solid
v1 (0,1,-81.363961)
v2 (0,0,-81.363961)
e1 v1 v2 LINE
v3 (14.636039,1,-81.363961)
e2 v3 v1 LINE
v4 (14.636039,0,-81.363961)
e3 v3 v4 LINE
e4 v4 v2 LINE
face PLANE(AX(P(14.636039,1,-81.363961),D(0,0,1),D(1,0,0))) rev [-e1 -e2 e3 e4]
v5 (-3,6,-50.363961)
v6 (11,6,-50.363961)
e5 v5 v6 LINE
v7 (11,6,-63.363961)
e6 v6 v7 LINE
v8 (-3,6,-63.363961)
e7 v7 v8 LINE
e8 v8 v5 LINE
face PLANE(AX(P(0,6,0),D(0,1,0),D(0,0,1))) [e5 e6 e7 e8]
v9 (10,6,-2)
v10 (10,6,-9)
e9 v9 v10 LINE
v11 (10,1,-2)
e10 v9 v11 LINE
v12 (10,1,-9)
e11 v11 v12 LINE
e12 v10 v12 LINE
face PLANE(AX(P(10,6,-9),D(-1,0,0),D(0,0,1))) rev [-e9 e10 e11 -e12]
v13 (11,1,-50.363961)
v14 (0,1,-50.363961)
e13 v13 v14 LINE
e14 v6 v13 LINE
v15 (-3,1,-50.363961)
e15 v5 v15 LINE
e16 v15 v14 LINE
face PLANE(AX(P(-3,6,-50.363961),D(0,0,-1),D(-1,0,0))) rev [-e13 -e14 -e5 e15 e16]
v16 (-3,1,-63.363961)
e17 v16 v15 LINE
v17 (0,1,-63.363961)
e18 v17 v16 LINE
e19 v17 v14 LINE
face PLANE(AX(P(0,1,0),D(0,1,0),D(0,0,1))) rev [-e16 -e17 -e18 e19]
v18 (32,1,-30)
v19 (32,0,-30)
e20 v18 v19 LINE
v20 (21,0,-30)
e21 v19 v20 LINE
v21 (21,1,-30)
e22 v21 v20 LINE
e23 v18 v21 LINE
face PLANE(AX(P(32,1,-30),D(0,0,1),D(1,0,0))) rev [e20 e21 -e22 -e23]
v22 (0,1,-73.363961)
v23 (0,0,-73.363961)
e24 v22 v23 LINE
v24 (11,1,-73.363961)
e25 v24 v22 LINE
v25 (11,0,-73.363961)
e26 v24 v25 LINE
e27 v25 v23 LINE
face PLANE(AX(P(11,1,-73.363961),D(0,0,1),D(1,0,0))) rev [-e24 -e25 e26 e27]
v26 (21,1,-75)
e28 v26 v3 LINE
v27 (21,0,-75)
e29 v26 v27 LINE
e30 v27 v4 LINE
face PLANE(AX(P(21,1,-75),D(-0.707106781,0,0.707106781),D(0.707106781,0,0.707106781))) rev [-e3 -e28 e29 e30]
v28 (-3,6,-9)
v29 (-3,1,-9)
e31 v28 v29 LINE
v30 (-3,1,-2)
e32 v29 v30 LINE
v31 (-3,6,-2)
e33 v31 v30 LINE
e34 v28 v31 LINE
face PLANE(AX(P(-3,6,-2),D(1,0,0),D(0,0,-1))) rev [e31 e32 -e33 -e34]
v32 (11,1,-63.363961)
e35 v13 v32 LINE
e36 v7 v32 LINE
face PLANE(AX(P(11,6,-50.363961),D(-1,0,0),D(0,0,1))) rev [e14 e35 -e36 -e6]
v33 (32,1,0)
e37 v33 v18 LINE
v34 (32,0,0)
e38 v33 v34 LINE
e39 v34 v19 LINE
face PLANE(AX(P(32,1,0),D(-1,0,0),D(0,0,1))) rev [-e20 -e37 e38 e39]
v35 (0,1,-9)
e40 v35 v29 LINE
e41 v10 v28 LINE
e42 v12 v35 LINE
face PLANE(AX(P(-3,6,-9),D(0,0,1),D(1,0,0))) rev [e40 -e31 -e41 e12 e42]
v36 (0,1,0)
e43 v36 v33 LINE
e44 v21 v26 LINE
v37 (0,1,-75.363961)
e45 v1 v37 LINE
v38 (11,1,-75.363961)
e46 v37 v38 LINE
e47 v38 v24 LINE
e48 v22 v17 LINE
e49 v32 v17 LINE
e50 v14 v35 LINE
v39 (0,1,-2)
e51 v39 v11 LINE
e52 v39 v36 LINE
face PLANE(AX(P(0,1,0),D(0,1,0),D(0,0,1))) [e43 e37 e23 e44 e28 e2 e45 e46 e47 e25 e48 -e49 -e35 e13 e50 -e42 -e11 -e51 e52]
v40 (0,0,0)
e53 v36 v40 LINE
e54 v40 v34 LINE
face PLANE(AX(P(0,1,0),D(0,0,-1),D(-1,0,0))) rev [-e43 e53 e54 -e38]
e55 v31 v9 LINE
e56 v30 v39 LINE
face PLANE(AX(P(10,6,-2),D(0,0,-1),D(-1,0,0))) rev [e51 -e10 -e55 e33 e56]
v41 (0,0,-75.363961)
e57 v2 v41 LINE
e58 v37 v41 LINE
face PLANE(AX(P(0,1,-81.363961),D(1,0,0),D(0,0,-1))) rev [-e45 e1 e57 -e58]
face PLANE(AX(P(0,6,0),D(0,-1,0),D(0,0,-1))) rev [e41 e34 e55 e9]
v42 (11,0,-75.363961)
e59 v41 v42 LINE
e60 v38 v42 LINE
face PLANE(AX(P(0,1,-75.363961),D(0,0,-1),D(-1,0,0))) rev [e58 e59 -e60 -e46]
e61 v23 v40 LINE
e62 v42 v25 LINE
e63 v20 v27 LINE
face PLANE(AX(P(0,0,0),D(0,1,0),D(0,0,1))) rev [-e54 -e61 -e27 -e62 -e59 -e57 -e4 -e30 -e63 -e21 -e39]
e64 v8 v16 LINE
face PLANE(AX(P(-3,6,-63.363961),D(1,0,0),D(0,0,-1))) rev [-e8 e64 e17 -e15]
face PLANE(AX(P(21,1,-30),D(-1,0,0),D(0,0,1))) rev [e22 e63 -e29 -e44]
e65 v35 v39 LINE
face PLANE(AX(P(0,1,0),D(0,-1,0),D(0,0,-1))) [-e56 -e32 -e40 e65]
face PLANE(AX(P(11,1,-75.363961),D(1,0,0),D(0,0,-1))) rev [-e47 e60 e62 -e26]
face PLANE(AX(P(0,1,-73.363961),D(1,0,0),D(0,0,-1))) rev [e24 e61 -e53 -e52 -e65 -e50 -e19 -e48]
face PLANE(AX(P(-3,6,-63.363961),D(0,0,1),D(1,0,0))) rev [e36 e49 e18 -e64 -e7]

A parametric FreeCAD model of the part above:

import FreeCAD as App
import Part
import Sketcher
from FreeCAD import Vector
Q = App.Units.Quantity

doc = App.newDocument("Part")
body = doc.addObject("PartDesign::Body", "Body")

sketch1 = body.newObject("Sketcher::SketchObject", "Sketch")
sketch1.AttachmentSupport = (doc.getObject("XZ_Plane"), [""])
sketch1.MapMode = "FlatFace"
sketch1.addGeometry([
    Part.LineSegment(Vector(0, 0, 0), Vector(32, 0, 0)),
    Part.LineSegment(Vector(32, 0, 0), Vector(32, -30, 0)),
    Part.LineSegment(Vector(32, -30, 0), Vector(21, -30, 0)),
    Part.LineSegment(Vector(21, -30, 0), Vector(21, -75, 0)),
    Part.LineSegment(Vector(21, -75, 0), Vector(14.636039, -81.363961, 0)),
    Part.LineSegment(Vector(14.636039, -81.363961, 0), Vector(0, -81.363961, 0)),
    Part.LineSegment(Vector(0, -81.363961, 0), Vector(0, -75.363961, 0)),
    Part.LineSegment(Vector(0, -75.363961, 0), Vector(11, -75.363961, 0)),
    Part.LineSegment(Vector(11, -75.363961, 0), Vector(11, -73.363961, 0)),
    Part.LineSegment(Vector(11, -73.363961, 0), Vector(0, -73.363961, 0)),
    Part.LineSegment(Vector(0, -73.363961, 0), Vector(0, 0, 0)),
], False)
sketch1.addConstraint([
    Sketcher.Constraint("Coincident", 0, 2, 1, 1),
    Sketcher.Constraint("Coincident", 1, 2, 2, 1),
    Sketcher.Constraint("Coincident", 2, 2, 3, 1),
    Sketcher.Constraint("Coincident", 3, 2, 4, 1),
    Sketcher.Constraint("Coincident", 4, 2, 5, 1),
    Sketcher.Constraint("Coincident", 5, 2, 6, 1),
    Sketcher.Constraint("Coincident", 6, 2, 7, 1),
    Sketcher.Constraint("Coincident", 7, 2, 8, 1),
    Sketcher.Constraint("Coincident", 8, 2, 9, 1),
    Sketcher.Constraint("Coincident", 9, 2, 10, 1),
    Sketcher.Constraint("Coincident", 10, 2, 0, 1),
    Sketcher.Constraint("Horizontal", 0),
    Sketcher.Constraint("Vertical", 1),
    Sketcher.Constraint("Horizontal", 2),
    Sketcher.Constraint("Vertical", 3),
    Sketcher.Constraint("Horizontal", 5),
    Sketcher.Constraint("Vertical", 6),
    Sketcher.Constraint("Horizontal", 7),
    Sketcher.Constraint("Vertical", 8),
    Sketcher.Constraint("Horizontal", 9),
    Sketcher.Constraint("Vertical", 10),
    Sketcher.Constraint("Coincident", 10, 2, -1, 1),
    Sketcher.Constraint("PointOnObject", 5, 2, -2),
    Sketcher.Constraint("Equal", 2, 7),
    Sketcher.Constraint("DistanceX", 0, 1, 0, 2, Q("32 mm")),
    Sketcher.Constraint("DistanceX", 2, 2, 2, 1, Q("11 mm")),
    Sketcher.Constraint("DistanceY", 1, 2, 1, 1, Q("30 mm")),
    Sketcher.Constraint("DistanceY", 3, 2, 3, 1, Q("45 mm")),
    Sketcher.Constraint("DistanceY", 6, 1, 6, 2, Q("6 mm")),
    Sketcher.Constraint("DistanceY", 8, 1, 8, 2, Q("2 mm")),
    Sketcher.Constraint("Angle", 4, Q("-135 deg")),
    Sketcher.Constraint("Distance", 4, Q("9 mm")),
])
pad1 = body.newObject("PartDesign::Pad", "Pad")
pad1.Profile = sketch1
pad1.Length = 1
pad1.Reversed = True

sketch2 = body.newObject("Sketcher::SketchObject", "Sketch001")
sketch2.AttachmentSupport = (doc.getObject("XZ_Plane"), [""])
sketch2.MapMode = "FlatFace"
sketch2.AttachmentOffset = App.Placement(Vector(0, 0, -1), App.Rotation())
sketch2.addGeometry([
    Part.LineSegment(Vector(-3, -9, 0), Vector(-3, -2, 0)),
    Part.LineSegment(Vector(-3, -2, 0), Vector(10, -2, 0)),
    Part.LineSegment(Vector(10, -2, 0), Vector(10, -9, 0)),
    Part.LineSegment(Vector(10, -9, 0), Vector(-3, -9, 0)),
], False)
sketch2.addConstraint([
    Sketcher.Constraint("Coincident", 0, 2, 1, 1),
    Sketcher.Constraint("Coincident", 1, 2, 2, 1),
    Sketcher.Constraint("Coincident", 2, 2, 3, 1),
    Sketcher.Constraint("Coincident", 3, 2, 0, 1),
    Sketcher.Constraint("Vertical", 0),
    Sketcher.Constraint("Horizontal", 1),
    Sketcher.Constraint("Vertical", 2),
    Sketcher.Constraint("Horizontal", 3),
    Sketcher.Constraint("DistanceX", 1, 1, 1, 2, Q("13 mm")),
    Sketcher.Constraint("DistanceY", 0, 1, 0, 2, Q("7 mm")),
    Sketcher.Constraint("DistanceX", 0, 2, -1, 1, Q("3 mm")),
    Sketcher.Constraint("DistanceY", 0, 2, -1, 1, Q("2 mm")),
])
pad2 = body.newObject("PartDesign::Pad", "Pad001")
pad2.Profile = sketch2
pad2.Length = 5
pad2.Reversed = True

sketch3 = body.newObject("Sketcher::SketchObject", "Sketch002")
sketch3.AttachmentSupport = (doc.getObject("XZ_Plane"), [""])
sketch3.MapMode = "FlatFace"
sketch3.AttachmentOffset = App.Placement(Vector(0, 0, -1), App.Rotation())
sketch3.addGeometry([
    Part.LineSegment(Vector(-3, -63.363961, 0), Vector(-3, -50.363961, 0)),
    Part.LineSegment(Vector(-3, -50.363961, 0), Vector(11, -50.363961, 0)),
    Part.LineSegment(Vector(11, -50.363961, 0), Vector(11, -63.363961, 0)),
    Part.LineSegment(Vector(11, -63.363961, 0), Vector(-3, -63.363961, 0)),
], False)
sketch3.addConstraint([
    Sketcher.Constraint("Coincident", 0, 2, 1, 1),
    Sketcher.Constraint("Coincident", 1, 2, 2, 1),
    Sketcher.Constraint("Coincident", 2, 2, 3, 1),
    Sketcher.Constraint("Coincident", 3, 2, 0, 1),
    Sketcher.Constraint("Vertical", 0),
    Sketcher.Constraint("Horizontal", 1),
    Sketcher.Constraint("Vertical", 2),
    Sketcher.Constraint("Horizontal", 3),
    Sketcher.Constraint("DistanceX", 1, 1, 1, 2, Q("14 mm")),
    Sketcher.Constraint("DistanceY", 0, 1, 0, 2, Q("13 mm")),
    Sketcher.Constraint("DistanceX", 0, 2, -1, 1, Q("3 mm")),
    Sketcher.Constraint("DistanceY", 0, 2, -1, 1, Q("50.363961 mm")),
])
pad3 = body.newObject("PartDesign::Pad", "Pad002")
pad3.Profile = sketch3
pad3.Length = 5
pad3.Reversed = True

doc.recompute()
